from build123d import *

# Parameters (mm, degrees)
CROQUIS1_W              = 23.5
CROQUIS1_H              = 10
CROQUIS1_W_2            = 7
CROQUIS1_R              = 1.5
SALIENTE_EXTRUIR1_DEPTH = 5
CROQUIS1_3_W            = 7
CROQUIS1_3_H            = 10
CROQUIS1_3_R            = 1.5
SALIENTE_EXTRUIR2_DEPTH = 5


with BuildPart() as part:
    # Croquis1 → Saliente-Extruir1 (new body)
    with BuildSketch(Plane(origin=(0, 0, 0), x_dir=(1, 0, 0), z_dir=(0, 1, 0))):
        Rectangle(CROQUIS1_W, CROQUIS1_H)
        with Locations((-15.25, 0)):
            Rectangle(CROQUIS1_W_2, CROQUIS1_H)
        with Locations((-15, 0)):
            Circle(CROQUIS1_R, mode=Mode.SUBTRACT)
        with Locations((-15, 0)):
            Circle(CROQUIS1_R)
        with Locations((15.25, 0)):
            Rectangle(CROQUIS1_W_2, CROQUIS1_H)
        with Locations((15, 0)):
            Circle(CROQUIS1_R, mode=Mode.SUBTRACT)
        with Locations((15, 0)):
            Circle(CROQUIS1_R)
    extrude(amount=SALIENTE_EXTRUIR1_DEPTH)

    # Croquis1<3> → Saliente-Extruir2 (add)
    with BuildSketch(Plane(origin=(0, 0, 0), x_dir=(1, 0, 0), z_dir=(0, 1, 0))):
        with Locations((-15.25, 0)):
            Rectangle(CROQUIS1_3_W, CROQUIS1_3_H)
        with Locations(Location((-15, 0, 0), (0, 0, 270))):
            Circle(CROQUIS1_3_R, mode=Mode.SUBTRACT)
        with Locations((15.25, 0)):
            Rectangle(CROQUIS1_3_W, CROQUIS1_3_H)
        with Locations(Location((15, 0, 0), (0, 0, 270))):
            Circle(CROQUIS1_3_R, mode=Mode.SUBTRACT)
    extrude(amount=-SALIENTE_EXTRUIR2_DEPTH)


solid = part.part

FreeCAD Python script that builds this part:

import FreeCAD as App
import Part
import Sketcher

V = App.Vector

doc = App.newDocument("Part")
body = doc.addObject("PartDesign::Body", "Body")

sketch1 = body.newObject("Sketcher::SketchObject", "Sketch")
sketch1.AttachmentSupport = (doc.getObject("XZ_Plane"), [""])
sketch1.MapMode = "FlatFace"
sketch1.addGeometry([
    Part.LineSegment(V(-19, -5, 0), V(-19, 5, 0)),
    Part.LineSegment(V(-19, 5, 0), V(19, 5, 0)),
    Part.LineSegment(V(19, 5, 0), V(19, -5, 0)),
    Part.LineSegment(V(19, -5, 0), V(-19, -5, 0)),
], False)
sketch1.addConstraint([
    Sketcher.Constraint("Coincident", 0, 2, 1, 1),
    Sketcher.Constraint("Coincident", 1, 2, 2, 1),
    Sketcher.Constraint("Coincident", 2, 2, 3, 1),
    Sketcher.Constraint("Coincident", 3, 2, 0, 1),
    Sketcher.Constraint("Vertical", 0),
    Sketcher.Constraint("Horizontal", 1),
    Sketcher.Constraint("Vertical", 2),
    Sketcher.Constraint("Horizontal", 3),
    Sketcher.Constraint("Symmetric", 0, 2, 2, 2, -1, 1),
    Sketcher.Constraint("DistanceY", 0, 1, 0, 2, 10.0),
    Sketcher.Constraint("DistanceX", 1, 1, 1, 2, 37.5),
])
pad1 = body.newObject("PartDesign::Pad", "Pad")
pad1.Profile = sketch1
pad1.Length = 5
pad1.Reversed = True

sketch2 = body.newObject("Sketcher::SketchObject", "Sketch001")
sketch2.AttachmentSupport = (doc.getObject("XZ_Plane"), [""])
sketch2.MapMode = "FlatFace"
sketch2.addGeometry([
    Part.LineSegment(V(-18.8, -5, 0), V(-18.8, 5, 0)),
    Part.LineSegment(V(-18.8, 5, 0), V(-11.8, 5, 0)),
    Part.LineSegment(V(-11.8, 5, 0), V(-11.8, -5, 0)),
    Part.LineSegment(V(-11.8, -5, 0), V(-18.8, -5, 0)),
    Part.Circle(V(-15, 0, 0), V(0, 0, 1), 1.5),
    Part.LineSegment(V(11.8, -5, 0), V(11.8, 5, 0)),
    Part.LineSegment(V(11.8, 5, 0), V(18.8, 5, 0)),
    Part.LineSegment(V(18.8, 5, 0), V(18.8, -5, 0)),
    Part.LineSegment(V(18.8, -5, 0), V(11.8, -5, 0)),
    Part.Circle(V(15, 0, 0), V(0, 0, 1), 1.5),
], False)
sketch2.addConstraint([
    Sketcher.Constraint("Coincident", 0, 2, 1, 1),
    Sketcher.Constraint("Coincident", 1, 2, 2, 1),
    Sketcher.Constraint("Coincident", 2, 2, 3, 1),
    Sketcher.Constraint("Coincident", 3, 2, 0, 1),
    Sketcher.Constraint("Coincident", 5, 2, 6, 1),
    Sketcher.Constraint("Coincident", 6, 2, 7, 1),
    Sketcher.Constraint("Coincident", 7, 2, 8, 1),
    Sketcher.Constraint("Coincident", 8, 2, 5, 1),
    Sketcher.Constraint("Vertical", 0),
    Sketcher.Constraint("Horizontal", 1),
    Sketcher.Constraint("Vertical", 2),
    Sketcher.Constraint("Horizontal", 3),
    Sketcher.Constraint("Vertical", 5),
    Sketcher.Constraint("Horizontal", 6),
    Sketcher.Constraint("Vertical", 7),
    Sketcher.Constraint("Horizontal", 8),
    Sketcher.Constraint("Equal", 4, 9),
    Sketcher.Constraint("Symmetric", 4, 3, 9, 3, -1, 1),
    Sketcher.Constraint("Symmetric", 2, 2, 5, 2, -1, 1),
    Sketcher.Constraint("Symmetric", 0, 2, 7, 2, -1, 1),
    Sketcher.Constraint("PointOnObject", 4, 3, -1),
    Sketcher.Constraint("Horizontal", 1, 2, 5, 2),
    Sketcher.Constraint("Diameter", 4, 3.0),
    Sketcher.Constraint("DistanceX", 1, 1, 1, 2, 7.0),
    Sketcher.Constraint("DistanceY", 0, 1, 0, 2, 10.0),
    Sketcher.Constraint("DistanceX", 4, 3, -1, 1, 15.0),
    Sketcher.Constraint("DistanceX", 1, 2, 5, 2, 23.5),
])
pad2 = body.newObject("PartDesign::Pad", "Pad001")
pad2.Profile = sketch2
pad2.Length = 5

doc.recompute()
